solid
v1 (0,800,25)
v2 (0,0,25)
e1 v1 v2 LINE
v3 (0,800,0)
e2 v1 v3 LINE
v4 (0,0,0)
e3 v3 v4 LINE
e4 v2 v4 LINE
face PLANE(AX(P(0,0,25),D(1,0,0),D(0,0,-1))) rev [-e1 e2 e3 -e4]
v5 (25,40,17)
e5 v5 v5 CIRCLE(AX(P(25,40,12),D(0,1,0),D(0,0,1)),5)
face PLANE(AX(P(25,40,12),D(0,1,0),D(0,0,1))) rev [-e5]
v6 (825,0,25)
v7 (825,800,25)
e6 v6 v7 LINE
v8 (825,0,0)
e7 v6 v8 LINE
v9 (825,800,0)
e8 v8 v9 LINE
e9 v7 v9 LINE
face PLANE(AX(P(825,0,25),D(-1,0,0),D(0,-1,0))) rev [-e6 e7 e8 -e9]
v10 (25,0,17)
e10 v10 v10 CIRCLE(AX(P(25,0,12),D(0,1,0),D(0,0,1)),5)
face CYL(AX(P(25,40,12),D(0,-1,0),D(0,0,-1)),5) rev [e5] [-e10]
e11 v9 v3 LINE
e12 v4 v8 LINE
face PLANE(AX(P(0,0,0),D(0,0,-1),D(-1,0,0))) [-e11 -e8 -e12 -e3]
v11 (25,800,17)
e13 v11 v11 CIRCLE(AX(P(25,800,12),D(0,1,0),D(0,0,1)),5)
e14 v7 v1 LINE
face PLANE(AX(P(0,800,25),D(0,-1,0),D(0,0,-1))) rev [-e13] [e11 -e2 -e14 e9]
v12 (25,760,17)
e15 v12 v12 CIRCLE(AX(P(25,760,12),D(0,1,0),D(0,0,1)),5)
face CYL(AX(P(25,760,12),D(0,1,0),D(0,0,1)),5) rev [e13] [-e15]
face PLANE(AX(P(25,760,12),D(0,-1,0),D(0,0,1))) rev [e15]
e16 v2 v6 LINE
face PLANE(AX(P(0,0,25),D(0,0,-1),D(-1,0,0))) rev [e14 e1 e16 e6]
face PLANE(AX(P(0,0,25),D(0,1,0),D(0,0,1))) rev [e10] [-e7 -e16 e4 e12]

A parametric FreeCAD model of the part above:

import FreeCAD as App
import Part
import Sketcher
Q = App.Units.Quantity


def add_polygon(sketch, points):
    """Adds a closed chain of lines whose ends are joined by coincident constraints."""
    first, n = sketch.GeometryCount, len(points)
    for a, b in zip(points, points[1:] + points[:1]):
        sketch.addGeometry(Part.LineSegment(App.Vector(*a, 0), App.Vector(*b, 0)), False)
    for i in range(n):
        sketch.addConstraint(Sketcher.Constraint("Coincident", first + i, 2, first + (i + 1) % n, 1))

doc = App.newDocument("Part")
body = doc.addObject("PartDesign::Body", "Body")

# Sketch on XY plane
sketch1 = doc.addObject("Sketcher::SketchObject", "Sketch")
body.addObject(sketch1)
sketch1.AttachmentSupport = (doc.XY_Plane, [""])
sketch1.MapMode = "FlatFace"
add_polygon(sketch1, [(0, 800), (0, 0), (825, 0), (825, 800)])  # lines 0-3
sketch1.addConstraint(Sketcher.Constraint("Vertical", 0))
sketch1.addConstraint(Sketcher.Constraint("Horizontal", 1))
sketch1.addConstraint(Sketcher.Constraint("Vertical", 2))
sketch1.addConstraint(Sketcher.Constraint("Horizontal", 3))
sketch1.addConstraint(Sketcher.Constraint("Coincident", 0, 2, -1, 1))
sketch1.addConstraint(Sketcher.Constraint("DistanceX", 1, 1, 1, 2, Q("825 mm")))
sketch1.addConstraint(Sketcher.Constraint("DistanceY", 0, 2, 0, 1, Q("800 mm")))
pad1 = doc.addObject("PartDesign::Pad", "Pad")
body.addObject(pad1)
pad1.Profile = sketch1
pad1.Length = 25

# Sketch on XZ plane
sketch2 = doc.addObject("Sketcher::SketchObject", "Sketch001")
body.addObject(sketch2)
sketch2.AttachmentSupport = (doc.XZ_Plane, [""])
sketch2.MapMode = "FlatFace"
sketch2.addGeometry(Part.Circle(App.Vector(25, 12, 0), App.Vector(0, 0, 1), 5), False)
sketch2.addConstraint(Sketcher.Constraint("Diameter", 0, Q("10 mm")))
sketch2.addConstraint(Sketcher.Constraint("DistanceX", -1, 1, 0, 3, Q("25 mm")))
sketch2.addConstraint(Sketcher.Constraint("DistanceY", -1, 1, 0, 3, Q("12 mm")))
pocket1 = doc.addObject("PartDesign::Pocket", "Pocket")
body.addObject(pocket1)
pocket1.Profile = sketch2
pocket1.Length = 40
doc.recompute()

datumplane = doc.addObject("PartDesign::Plane", "DatumPlane")
body.addObject(datumplane)
datumplane.AttachmentSupport = (doc.XZ_Plane, [""])
datumplane.MapMode = "FlatFace"
datumplane.AttachmentOffset = App.Placement(App.Vector(0, 0, -400), App.Rotation())
mirrored = doc.addObject("PartDesign::Mirrored", "Mirrored")
body.addObject(mirrored)
mirrored.Originals = [pocket1]
mirrored.MirrorPlane = (datumplane, [""])
body.Tip = mirrored

doc.recompute()
